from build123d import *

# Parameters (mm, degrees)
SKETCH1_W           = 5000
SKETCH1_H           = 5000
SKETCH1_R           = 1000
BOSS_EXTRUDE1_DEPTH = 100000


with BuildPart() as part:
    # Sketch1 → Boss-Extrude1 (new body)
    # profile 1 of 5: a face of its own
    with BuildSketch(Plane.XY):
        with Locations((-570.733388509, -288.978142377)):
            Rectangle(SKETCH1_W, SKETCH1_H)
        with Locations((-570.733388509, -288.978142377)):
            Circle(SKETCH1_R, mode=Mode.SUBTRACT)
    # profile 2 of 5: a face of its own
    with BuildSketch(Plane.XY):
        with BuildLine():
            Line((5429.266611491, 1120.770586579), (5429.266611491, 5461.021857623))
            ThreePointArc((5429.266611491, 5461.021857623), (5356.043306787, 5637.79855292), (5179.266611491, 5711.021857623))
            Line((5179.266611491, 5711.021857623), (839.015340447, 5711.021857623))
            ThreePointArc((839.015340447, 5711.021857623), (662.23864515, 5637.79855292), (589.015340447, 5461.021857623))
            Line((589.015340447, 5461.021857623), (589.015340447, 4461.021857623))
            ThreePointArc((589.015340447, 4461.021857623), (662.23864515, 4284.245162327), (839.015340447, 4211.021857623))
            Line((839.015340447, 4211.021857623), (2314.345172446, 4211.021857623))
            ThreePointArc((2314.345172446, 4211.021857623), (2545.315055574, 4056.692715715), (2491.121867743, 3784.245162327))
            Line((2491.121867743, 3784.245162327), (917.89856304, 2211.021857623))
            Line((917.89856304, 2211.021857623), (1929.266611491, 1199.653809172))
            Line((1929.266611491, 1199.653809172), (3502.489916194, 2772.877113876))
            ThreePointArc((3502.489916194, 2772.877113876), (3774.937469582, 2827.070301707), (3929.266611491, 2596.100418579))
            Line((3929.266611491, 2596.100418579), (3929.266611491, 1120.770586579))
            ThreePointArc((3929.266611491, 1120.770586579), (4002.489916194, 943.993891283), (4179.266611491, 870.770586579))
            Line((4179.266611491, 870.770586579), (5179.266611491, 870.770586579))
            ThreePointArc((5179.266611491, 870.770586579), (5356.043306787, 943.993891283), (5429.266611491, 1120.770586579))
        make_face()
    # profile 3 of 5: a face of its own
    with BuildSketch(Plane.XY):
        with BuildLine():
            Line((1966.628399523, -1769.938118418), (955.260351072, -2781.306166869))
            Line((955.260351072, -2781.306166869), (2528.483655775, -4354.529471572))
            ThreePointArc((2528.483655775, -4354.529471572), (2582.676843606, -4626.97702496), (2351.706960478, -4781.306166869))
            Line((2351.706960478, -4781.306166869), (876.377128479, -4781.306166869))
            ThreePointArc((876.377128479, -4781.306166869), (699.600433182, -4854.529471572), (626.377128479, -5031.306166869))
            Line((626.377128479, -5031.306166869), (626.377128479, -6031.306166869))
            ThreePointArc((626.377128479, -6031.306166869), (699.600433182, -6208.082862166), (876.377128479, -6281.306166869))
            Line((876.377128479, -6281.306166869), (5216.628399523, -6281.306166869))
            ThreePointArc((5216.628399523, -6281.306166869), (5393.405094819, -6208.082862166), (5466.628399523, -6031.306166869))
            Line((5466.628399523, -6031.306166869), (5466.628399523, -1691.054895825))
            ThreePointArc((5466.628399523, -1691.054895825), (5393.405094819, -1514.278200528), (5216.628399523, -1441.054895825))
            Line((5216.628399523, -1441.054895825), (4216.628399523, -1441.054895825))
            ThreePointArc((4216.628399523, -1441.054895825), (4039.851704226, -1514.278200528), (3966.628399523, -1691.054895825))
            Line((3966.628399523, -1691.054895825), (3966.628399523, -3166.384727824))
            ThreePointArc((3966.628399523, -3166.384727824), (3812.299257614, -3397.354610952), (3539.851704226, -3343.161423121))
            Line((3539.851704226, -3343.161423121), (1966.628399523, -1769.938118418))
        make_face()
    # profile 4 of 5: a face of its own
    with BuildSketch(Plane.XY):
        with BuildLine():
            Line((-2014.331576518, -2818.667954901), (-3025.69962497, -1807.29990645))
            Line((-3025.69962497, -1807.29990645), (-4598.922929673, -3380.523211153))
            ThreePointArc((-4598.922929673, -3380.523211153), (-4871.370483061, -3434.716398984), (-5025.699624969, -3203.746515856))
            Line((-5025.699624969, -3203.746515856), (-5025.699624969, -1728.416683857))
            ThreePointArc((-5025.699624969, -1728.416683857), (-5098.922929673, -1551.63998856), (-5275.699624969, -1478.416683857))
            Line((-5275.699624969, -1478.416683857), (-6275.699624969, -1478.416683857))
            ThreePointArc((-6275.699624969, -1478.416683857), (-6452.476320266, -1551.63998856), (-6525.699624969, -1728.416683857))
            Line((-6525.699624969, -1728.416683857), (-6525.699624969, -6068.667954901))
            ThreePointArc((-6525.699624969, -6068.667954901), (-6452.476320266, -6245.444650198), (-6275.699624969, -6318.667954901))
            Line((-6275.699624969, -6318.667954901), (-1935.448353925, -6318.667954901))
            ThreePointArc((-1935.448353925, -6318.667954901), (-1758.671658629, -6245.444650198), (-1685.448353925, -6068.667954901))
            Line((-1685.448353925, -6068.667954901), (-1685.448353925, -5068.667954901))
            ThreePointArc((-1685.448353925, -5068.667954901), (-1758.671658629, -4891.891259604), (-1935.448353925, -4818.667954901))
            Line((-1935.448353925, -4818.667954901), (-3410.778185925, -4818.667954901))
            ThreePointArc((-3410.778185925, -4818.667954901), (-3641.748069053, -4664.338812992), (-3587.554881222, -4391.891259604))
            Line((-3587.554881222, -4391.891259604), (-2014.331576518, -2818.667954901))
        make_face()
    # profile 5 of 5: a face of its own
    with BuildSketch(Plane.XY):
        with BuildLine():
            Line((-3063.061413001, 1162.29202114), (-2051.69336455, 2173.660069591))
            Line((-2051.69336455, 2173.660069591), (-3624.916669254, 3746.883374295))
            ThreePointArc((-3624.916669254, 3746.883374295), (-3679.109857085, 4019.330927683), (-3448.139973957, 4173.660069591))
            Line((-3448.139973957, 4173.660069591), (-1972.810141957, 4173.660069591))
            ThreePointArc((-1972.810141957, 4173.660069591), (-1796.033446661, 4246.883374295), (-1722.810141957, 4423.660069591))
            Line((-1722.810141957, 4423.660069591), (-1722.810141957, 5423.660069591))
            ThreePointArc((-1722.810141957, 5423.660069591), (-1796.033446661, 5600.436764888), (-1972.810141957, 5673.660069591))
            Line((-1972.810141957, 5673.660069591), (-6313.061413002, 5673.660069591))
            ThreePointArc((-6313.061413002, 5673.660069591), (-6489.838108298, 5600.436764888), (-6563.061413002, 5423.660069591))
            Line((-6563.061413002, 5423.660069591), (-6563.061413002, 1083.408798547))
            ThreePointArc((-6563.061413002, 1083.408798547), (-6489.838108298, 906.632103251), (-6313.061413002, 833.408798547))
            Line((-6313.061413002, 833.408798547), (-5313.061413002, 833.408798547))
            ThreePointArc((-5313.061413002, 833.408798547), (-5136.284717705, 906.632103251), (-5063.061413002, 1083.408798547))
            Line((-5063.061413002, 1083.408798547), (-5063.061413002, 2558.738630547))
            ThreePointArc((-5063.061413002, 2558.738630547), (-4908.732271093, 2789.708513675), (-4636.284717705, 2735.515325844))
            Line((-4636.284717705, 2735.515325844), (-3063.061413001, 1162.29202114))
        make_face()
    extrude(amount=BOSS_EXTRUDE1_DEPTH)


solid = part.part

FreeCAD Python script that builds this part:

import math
import FreeCAD as App
import Part
import Sketcher
from FreeCAD import Vector
Q = App.Units.Quantity

doc = App.newDocument("Part")
body = doc.addObject("PartDesign::Body", "Body")

sketch1 = doc.addObject("Sketcher::SketchObject", "Sketch")
body.addObject(sketch1)
sketch1.AttachmentSupport = (doc.XY_Plane, [""])
sketch1.MapMode = "FlatFace"
sketch1.addGeometry(Part.LineSegment(Vector(-3588, -4392, 0), Vector(-2014, -2819, 0)), False)
sketch1.addGeometry(Part.LineSegment(Vector(-2014, -2819, 0), Vector(-2044, -2789, 0)), False)
sketch1.addGeometry(Part.LineSegment(Vector(-2044, -2789, 0), Vector(963, -2789, 0)), False)
sketch1.addGeometry(Part.LineSegment(Vector(963, -2789, 0), Vector(2528, -4355, 0)), False)
sketch1.addGeometry(Part.ArcOfCircle(Part.Circle(Vector(2352, -4531, 0), Vector(0, 0, 1), 250), math.radians(-90), math.radians(45)), False)
sketch1.addGeometry(Part.LineSegment(Vector(2352, -4781, 0), Vector(876, -4781, 0)), False)
sketch1.addGeometry(Part.ArcOfCircle(Part.Circle(Vector(876, -5031, 0), Vector(0, 0, 1), 250), math.radians(90), math.radians(180)), False)
sketch1.addGeometry(Part.LineSegment(Vector(626, -5031, 0), Vector(626, -6031, 0)), False)
sketch1.addGeometry(Part.ArcOfCircle(Part.Circle(Vector(876, -6031, 0), Vector(0, 0, 1), 250), math.radians(180), math.radians(270)), False)
sketch1.addGeometry(Part.LineSegment(Vector(876, -6281, 0), Vector(5217, -6281, 0)), False)
sketch1.addGeometry(Part.ArcOfCircle(Part.Circle(Vector(5217, -6031, 0), Vector(0, 0, 1), 250), math.radians(-90), math.radians(0)), False)
sketch1.addGeometry(Part.LineSegment(Vector(5467, -6031, 0), Vector(5467, -1691, 0)), False)
sketch1.addGeometry(Part.ArcOfCircle(Part.Circle(Vector(5217, -1691, 0), Vector(0, 0, 1), 250), math.radians(0), math.radians(90)), False)
sketch1.addGeometry(Part.LineSegment(Vector(5217, -1441, 0), Vector(4217, -1441, 0)), False)
sketch1.addGeometry(Part.ArcOfCircle(Part.Circle(Vector(4217, -1691, 0), Vector(0, 0, 1), 250), math.radians(90), math.radians(180)), False)
sketch1.addGeometry(Part.LineSegment(Vector(3967, -1691, 0), Vector(3967, -3166, 0)), False)
sketch1.addGeometry(Part.ArcOfCircle(Part.Circle(Vector(3717, -3166, 0), Vector(0, 0, 1), 250), math.radians(-135), math.radians(0)), False)
sketch1.addGeometry(Part.LineSegment(Vector(3540, -3343, 0), Vector(1967, -1770, 0)), False)
sketch1.addGeometry(Part.LineSegment(Vector(1967, -1770, 0), Vector(1929, -1807, 0)), False)
sketch1.addGeometry(Part.LineSegment(Vector(1929, -1807, 0), Vector(1929, 1200, 0)), False)
sketch1.addGeometry(Part.LineSegment(Vector(1929, 1200, 0), Vector(3502, 2773, 0)), False)
sketch1.addGeometry(Part.ArcOfCircle(Part.Circle(Vector(3679, 2596, 0), Vector(0, 0, 1), 250), math.radians(0), math.radians(135)), False)
sketch1.addGeometry(Part.LineSegment(Vector(3929, 2596, 0), Vector(3929, 1121, 0)), False)
sketch1.addGeometry(Part.ArcOfCircle(Part.Circle(Vector(4179, 1121, 0), Vector(0, 0, 1), 250), math.radians(180), math.radians(270)), False)
sketch1.addGeometry(Part.LineSegment(Vector(4179, 871, 0), Vector(5179, 871, 0)), False)
sketch1.addGeometry(Part.ArcOfCircle(Part.Circle(Vector(5179, 1121, 0), Vector(0, 0, 1), 250), math.radians(-90), math.radians(0)), False)
sketch1.addGeometry(Part.LineSegment(Vector(5429, 1121, 0), Vector(5429, 5461, 0)), False)
sketch1.addGeometry(Part.ArcOfCircle(Part.Circle(Vector(5179, 5461, 0), Vector(0, 0, 1), 250), math.radians(0), math.radians(90)), False)
sketch1.addGeometry(Part.LineSegment(Vector(5179, 5711, 0), Vector(839, 5711, 0)), False)
sketch1.addGeometry(Part.ArcOfCircle(Part.Circle(Vector(839, 5461, 0), Vector(0, 0, 1), 250), math.radians(90), math.radians(180)), False)
sketch1.addGeometry(Part.LineSegment(Vector(589, 5461, 0), Vector(589, 4461, 0)), False)
sketch1.addGeometry(Part.ArcOfCircle(Part.Circle(Vector(839, 4461, 0), Vector(0, 0, 1), 250), math.radians(180), math.radians(270)), False)
sketch1.addGeometry(Part.LineSegment(Vector(839, 4211, 0), Vector(2314, 4211, 0)), False)
sketch1.addGeometry(Part.ArcOfCircle(Part.Circle(Vector(2314, 3961, 0), Vector(0, 0, 1), 250), math.radians(-45), math.radians(90)), False)
sketch1.addGeometry(Part.LineSegment(Vector(2491, 3784, 0), Vector(918, 2211, 0)), False)
sketch1.addGeometry(Part.LineSegment(Vector(918, 2211, 0), Vector(-2089, 2211, 0)), False)
sketch1.addGeometry(Part.LineSegment(Vector(-2089, 2211, 0), Vector(-3625, 3747, 0)), False)
sketch1.addGeometry(Part.ArcOfCircle(Part.Circle(Vector(-3448, 3924, 0), Vector(0, 0, 1), 250), math.radians(90), math.radians(225)), False)
sketch1.addGeometry(Part.LineSegment(Vector(-3448, 4174, 0), Vector(-1973, 4174, 0)), False)
sketch1.addGeometry(Part.ArcOfCircle(Part.Circle(Vector(-1973, 4424, 0), Vector(0, 0, 1), 250), math.radians(-90), math.radians(0)), False)
sketch1.addGeometry(Part.LineSegment(Vector(-1723, 4424, 0), Vector(-1723, 5424, 0)), False)
sketch1.addGeometry(Part.ArcOfCircle(Part.Circle(Vector(-1973, 5424, 0), Vector(0, 0, 1), 250), math.radians(0), math.radians(90)), False)
sketch1.addGeometry(Part.LineSegment(Vector(-1973, 5674, 0), Vector(-6313, 5674, 0)), False)
sketch1.addGeometry(Part.ArcOfCircle(Part.Circle(Vector(-6313, 5424, 0), Vector(0, 0, 1), 250), math.radians(90), math.radians(180)), False)
sketch1.addGeometry(Part.LineSegment(Vector(-6563, 5424, 0), Vector(-6563, 1083, 0)), False)
sketch1.addGeometry(Part.ArcOfCircle(Part.Circle(Vector(-6313, 1083, 0), Vector(0, 0, 1), 250), math.radians(-180), math.radians(-90)), False)
sketch1.addGeometry(Part.LineSegment(Vector(-6313, 833, 0), Vector(-5313, 833, 0)), False)
sketch1.addGeometry(Part.ArcOfCircle(Part.Circle(Vector(-5313, 1083, 0), Vector(0, 0, 1), 250), math.radians(-90), math.radians(0)), False)
sketch1.addGeometry(Part.LineSegment(Vector(-5063, 1083, 0), Vector(-5063, 2559, 0)), False)
sketch1.addGeometry(Part.ArcOfCircle(Part.Circle(Vector(-4813, 2559, 0), Vector(0, 0, 1), 250), math.radians(45), math.radians(180)), False)
sketch1.addGeometry(Part.LineSegment(Vector(-4636, 2736, 0), Vector(-3071, 1170, 0)), False)
sketch1.addGeometry(Part.LineSegment(Vector(-3071, 1170, 0), Vector(-3071, -1852, 0)), False)
sketch1.addGeometry(Part.LineSegment(Vector(-3071, -1852, 0), Vector(-4599, -3381, 0)), False)
sketch1.addGeometry(Part.ArcOfCircle(Part.Circle(Vector(-4776, -3204, 0), Vector(0, 0, 1), 250), math.radians(180), math.radians(315)), False)
sketch1.addGeometry(Part.LineSegment(Vector(-5026, -3204, 0), Vector(-5026, -1728, 0)), False)
sketch1.addGeometry(Part.ArcOfCircle(Part.Circle(Vector(-5276, -1728, 0), Vector(0, 0, 1), 250), math.radians(0), math.radians(90)), False)
sketch1.addGeometry(Part.LineSegment(Vector(-5276, -1478, 0), Vector(-6276, -1478, 0)), False)
sketch1.addGeometry(Part.ArcOfCircle(Part.Circle(Vector(-6276, -1728, 0), Vector(0, 0, 1), 250), math.radians(90), math.radians(180)), False)
sketch1.addGeometry(Part.LineSegment(Vector(-6526, -1728, 0), Vector(-6526, -6069, 0)), False)
sketch1.addGeometry(Part.ArcOfCircle(Part.Circle(Vector(-6276, -6069, 0), Vector(0, 0, 1), 250), math.radians(180), math.radians(270)), False)
sketch1.addGeometry(Part.LineSegment(Vector(-6276, -6319, 0), Vector(-1935, -6319, 0)), False)
sketch1.addGeometry(Part.ArcOfCircle(Part.Circle(Vector(-1935, -6069, 0), Vector(0, 0, 1), 250), math.radians(-90), math.radians(0)), False)
sketch1.addGeometry(Part.LineSegment(Vector(-1685, -6069, 0), Vector(-1685, -5069, 0)), False)
sketch1.addGeometry(Part.ArcOfCircle(Part.Circle(Vector(-1935, -5069, 0), Vector(0, 0, 1), 250), math.radians(0), math.radians(90)), False)
sketch1.addGeometry(Part.LineSegment(Vector(-1935, -4819, 0), Vector(-3411, -4819, 0)), False)
sketch1.addGeometry(Part.ArcOfCircle(Part.Circle(Vector(-3411, -4569, 0), Vector(0, 0, 1), 250), math.radians(135), math.radians(270)), False)
sketch1.addGeometry(Part.Circle(Vector(-571, -289, 0), Vector(0, 0, 1), 1000), False)
sketch1.addConstraint(Sketcher.Constraint("Coincident", 0, 2, 1, 1))
sketch1.addConstraint(Sketcher.Constraint("Coincident", 1, 2, 2, 1))
sketch1.addConstraint(Sketcher.Constraint("Coincident", 2, 2, 3, 1))
sketch1.addConstraint(Sketcher.Constraint("Tangent", 3, 2, 4, 2))
sketch1.addConstraint(Sketcher.Constraint("Tangent", 4, 1, 5, 1))
sketch1.addConstraint(Sketcher.Constraint("Tangent", 5, 2, 6, 1))
sketch1.addConstraint(Sketcher.Constraint("Tangent", 6, 2, 7, 1))
sketch1.addConstraint(Sketcher.Constraint("Tangent", 7, 2, 8, 1))
sketch1.addConstraint(Sketcher.Constraint("Tangent", 8, 2, 9, 1))
sketch1.addConstraint(Sketcher.Constraint("Tangent", 9, 2, 10, 1))
sketch1.addConstraint(Sketcher.Constraint("Tangent", 10, 2, 11, 1))
sketch1.addConstraint(Sketcher.Constraint("Tangent", 11, 2, 12, 1))
sketch1.addConstraint(Sketcher.Constraint("Tangent", 12, 2, 13, 1))
sketch1.addConstraint(Sketcher.Constraint("Tangent", 13, 2, 14, 1))
sketch1.addConstraint(Sketcher.Constraint("Tangent", 14, 2, 15, 1))
sketch1.addConstraint(Sketcher.Constraint("Tangent", 15, 2, 16, 2))
sketch1.addConstraint(Sketcher.Constraint("Tangent", 16, 1, 17, 1))
sketch1.addConstraint(Sketcher.Constraint("Coincident", 17, 2, 18, 1))
sketch1.addConstraint(Sketcher.Constraint("Coincident", 18, 2, 19, 1))
sketch1.addConstraint(Sketcher.Constraint("Coincident", 19, 2, 20, 1))
sketch1.addConstraint(Sketcher.Constraint("Tangent", 20, 2, 21, 2))
sketch1.addConstraint(Sketcher.Constraint("Tangent", 21, 1, 22, 1))
sketch1.addConstraint(Sketcher.Constraint("Tangent", 22, 2, 23, 1))
sketch1.addConstraint(Sketcher.Constraint("Tangent", 23, 2, 24, 1))
sketch1.addConstraint(Sketcher.Constraint("Tangent", 24, 2, 25, 1))
sketch1.addConstraint(Sketcher.Constraint("Tangent", 25, 2, 26, 1))
sketch1.addConstraint(Sketcher.Constraint("Tangent", 26, 2, 27, 1))
sketch1.addConstraint(Sketcher.Constraint("Tangent", 27, 2, 28, 1))
sketch1.addConstraint(Sketcher.Constraint("Tangent", 28, 2, 29, 1))
sketch1.addConstraint(Sketcher.Constraint("Tangent", 29, 2, 30, 1))
sketch1.addConstraint(Sketcher.Constraint("Tangent", 30, 2, 31, 1))
sketch1.addConstraint(Sketcher.Constraint("Tangent", 31, 2, 32, 1))
sketch1.addConstraint(Sketcher.Constraint("Tangent", 32, 2, 33, 2))
sketch1.addConstraint(Sketcher.Constraint("Tangent", 33, 1, 34, 1))
sketch1.addConstraint(Sketcher.Constraint("Coincident", 34, 2, 35, 1))
sketch1.addConstraint(Sketcher.Constraint("Coincident", 35, 2, 36, 1))
sketch1.addConstraint(Sketcher.Constraint("Tangent", 36, 2, 37, 2))
sketch1.addConstraint(Sketcher.Constraint("Tangent", 37, 1, 38, 1))
sketch1.addConstraint(Sketcher.Constraint("Tangent", 38, 2, 39, 1))
sketch1.addConstraint(Sketcher.Constraint("Tangent", 39, 2, 40, 1))
sketch1.addConstraint(Sketcher.Constraint("Tangent", 40, 2, 41, 1))
sketch1.addConstraint(Sketcher.Constraint("Tangent", 41, 2, 42, 1))
sketch1.addConstraint(Sketcher.Constraint("Tangent", 42, 2, 43, 1))
sketch1.addConstraint(Sketcher.Constraint("Tangent", 43, 2, 44, 1))
sketch1.addConstraint(Sketcher.Constraint("Tangent", 44, 2, 45, 1))
sketch1.addConstraint(Sketcher.Constraint("Tangent", 45, 2, 46, 1))
sketch1.addConstraint(Sketcher.Constraint("Tangent", 46, 2, 47, 1))
sketch1.addConstraint(Sketcher.Constraint("Tangent", 47, 2, 48, 1))
sketch1.addConstraint(Sketcher.Constraint("Tangent", 48, 2, 49, 2))
sketch1.addConstraint(Sketcher.Constraint("Tangent", 49, 1, 50, 1))
sketch1.addConstraint(Sketcher.Constraint("Coincident", 50, 2, 51, 1))
sketch1.addConstraint(Sketcher.Constraint("Coincident", 51, 2, 52, 1))
sketch1.addConstraint(Sketcher.Constraint("Tangent", 52, 2, 53, 2))
sketch1.addConstraint(Sketcher.Constraint("Tangent", 53, 1, 54, 1))
sketch1.addConstraint(Sketcher.Constraint("Tangent", 54, 2, 55, 1))
sketch1.addConstraint(Sketcher.Constraint("Tangent", 55, 2, 56, 1))
sketch1.addConstraint(Sketcher.Constraint("Tangent", 56, 2, 57, 1))
sketch1.addConstraint(Sketcher.Constraint("Tangent", 57, 2, 58, 1))
sketch1.addConstraint(Sketcher.Constraint("Tangent", 58, 2, 59, 1))
sketch1.addConstraint(Sketcher.Constraint("Tangent", 59, 2, 60, 1))
sketch1.addConstraint(Sketcher.Constraint("Tangent", 60, 2, 61, 1))
sketch1.addConstraint(Sketcher.Constraint("Tangent", 61, 2, 62, 1))
sketch1.addConstraint(Sketcher.Constraint("Tangent", 62, 2, 63, 1))
sketch1.addConstraint(Sketcher.Constraint("Tangent", 63, 2, 64, 1))
sketch1.addConstraint(Sketcher.Constraint("Tangent", 64, 2, 65, 2))
sketch1.addConstraint(Sketcher.Constraint("Tangent", 65, 1, 0, 1))
sketch1.addConstraint(Sketcher.Constraint("Horizontal", 2))
sketch1.addConstraint(Sketcher.Constraint("Horizontal", 5))
sketch1.addConstraint(Sketcher.Constraint("Vertical", 7))
sketch1.addConstraint(Sketcher.Constraint("Horizontal", 9))
sketch1.addConstraint(Sketcher.Constraint("Vertical", 11))
sketch1.addConstraint(Sketcher.Constraint("Horizontal", 13))
sketch1.addConstraint(Sketcher.Constraint("Vertical", 15))
sketch1.addConstraint(Sketcher.Constraint("Vertical", 19))
sketch1.addConstraint(Sketcher.Constraint("Vertical", 22))
sketch1.addConstraint(Sketcher.Constraint("Horizontal", 24))
sketch1.addConstraint(Sketcher.Constraint("Vertical", 26))
sketch1.addConstraint(Sketcher.Constraint("Horizontal", 28))
sketch1.addConstraint(Sketcher.Constraint("Vertical", 30))
sketch1.addConstraint(Sketcher.Constraint("Horizontal", 32))
sketch1.addConstraint(Sketcher.Constraint("Horizontal", 35))
sketch1.addConstraint(Sketcher.Constraint("Horizontal", 38))
sketch1.addConstraint(Sketcher.Constraint("Vertical", 40))
sketch1.addConstraint(Sketcher.Constraint("Horizontal", 42))
sketch1.addConstraint(Sketcher.Constraint("Vertical", 44))
sketch1.addConstraint(Sketcher.Constraint("Horizontal", 46))
sketch1.addConstraint(Sketcher.Constraint("Vertical", 48))
sketch1.addConstraint(Sketcher.Constraint("Vertical", 51))
sketch1.addConstraint(Sketcher.Constraint("Vertical", 54))
sketch1.addConstraint(Sketcher.Constraint("Horizontal", 56))
sketch1.addConstraint(Sketcher.Constraint("Vertical", 58))
sketch1.addConstraint(Sketcher.Constraint("Horizontal", 60))
sketch1.addConstraint(Sketcher.Constraint("Vertical", 62))
sketch1.addConstraint(Sketcher.Constraint("Horizontal", 64))
sketch1.addConstraint(Sketcher.Constraint("Equal", 4, 6))
sketch1.addConstraint(Sketcher.Constraint("Equal", 6, 8))
sketch1.addConstraint(Sketcher.Constraint("Equal", 8, 10))
sketch1.addConstraint(Sketcher.Constraint("Equal", 10, 12))
sketch1.addConstraint(Sketcher.Constraint("Equal", 12, 14))
sketch1.addConstraint(Sketcher.Constraint("Equal", 14, 16))
sketch1.addConstraint(Sketcher.Constraint("Equal", 16, 21))
sketch1.addConstraint(Sketcher.Constraint("Equal", 21, 23))
sketch1.addConstraint(Sketcher.Constraint("Equal", 23, 25))
sketch1.addConstraint(Sketcher.Constraint("Equal", 25, 27))
sketch1.addConstraint(Sketcher.Constraint("Equal", 27, 29))
sketch1.addConstraint(Sketcher.Constraint("Equal", 29, 31))
sketch1.addConstraint(Sketcher.Constraint("Equal", 31, 33))
sketch1.addConstraint(Sketcher.Constraint("Equal", 33, 37))
sketch1.addConstraint(Sketcher.Constraint("Equal", 37, 39))
sketch1.addConstraint(Sketcher.Constraint("Equal", 39, 41))
sketch1.addConstraint(Sketcher.Constraint("Equal", 41, 43))
sketch1.addConstraint(Sketcher.Constraint("Equal", 43, 45))
sketch1.addConstraint(Sketcher.Constraint("Equal", 45, 47))
sketch1.addConstraint(Sketcher.Constraint("Equal", 47, 49))
sketch1.addConstraint(Sketcher.Constraint("Equal", 49, 53))
sketch1.addConstraint(Sketcher.Constraint("Equal", 53, 55))
sketch1.addConstraint(Sketcher.Constraint("Equal", 55, 57))
sketch1.addConstraint(Sketcher.Constraint("Equal", 57, 59))
sketch1.addConstraint(Sketcher.Constraint("Equal", 59, 61))
sketch1.addConstraint(Sketcher.Constraint("Equal", 61, 63))
sketch1.addConstraint(Sketcher.Constraint("Equal", 63, 65))
sketch1.addConstraint(Sketcher.Constraint("Perpendicular", 0, 1))
sketch1.addConstraint(Sketcher.Constraint("Parallel", 1, 3))
sketch1.addConstraint(Sketcher.Constraint("Parallel", 3, 17))
sketch1.addConstraint(Sketcher.Constraint("Perpendicular", 17, 18))
sketch1.addConstraint(Sketcher.Constraint("Parallel", 18, 20))
sketch1.addConstraint(Sketcher.Constraint("Parallel", 20, 34))
sketch1.addConstraint(Sketcher.Constraint("Perpendicular", 34, 36))
sketch1.addConstraint(Sketcher.Constraint("Parallel", 36, 50))
sketch1.addConstraint(Sketcher.Constraint("Perpendicular", 50, 52))
sketch1.addConstraint(Sketcher.Constraint("Equal", 13, 24))
sketch1.addConstraint(Sketcher.Constraint("Equal", 9, 28))
sketch1.addConstraint(Sketcher.Constraint("Equal", 5, 32))
sketch1.addConstraint(Sketcher.Constraint("Equal", 2, 35))
sketch1.addConstraint(Sketcher.Constraint("Equal", 32, 38))
sketch1.addConstraint(Sketcher.Constraint("Equal", 28, 42))
sketch1.addConstraint(Sketcher.Constraint("Equal", 24, 46))
sketch1.addConstraint(Sketcher.Constraint("Equal", 46, 56))
sketch1.addConstraint(Sketcher.Constraint("Equal", 42, 60))
sketch1.addConstraint(Sketcher.Constraint("Equal", 38, 64))
sketch1.addConstraint(Sketcher.Constraint("Equal", 56, 7))
sketch1.addConstraint(Sketcher.Constraint("Equal", 60, 11))
sketch1.addConstraint(Sketcher.Constraint("Equal", 64, 15))
sketch1.addConstraint(Sketcher.Constraint("Equal", 35, 19))
sketch1.addConstraint(Sketcher.Constraint("Equal", 15, 22))
sketch1.addConstraint(Sketcher.Constraint("Equal", 11, 26))
sketch1.addConstraint(Sketcher.Constraint("Equal", 7, 30))
sketch1.addConstraint(Sketcher.Constraint("Equal", 30, 40))
sketch1.addConstraint(Sketcher.Constraint("Equal", 26, 44))
sketch1.addConstraint(Sketcher.Constraint("Equal", 22, 48))
sketch1.addConstraint(Sketcher.Constraint("Equal", 48, 54))
sketch1.addConstraint(Sketcher.Constraint("Equal", 44, 58))
sketch1.addConstraint(Sketcher.Constraint("Equal", 40, 62))
sketch1.addConstraint(Sketcher.Constraint("Equal", 0, 17))
sketch1.addConstraint(Sketcher.Constraint("Equal", 17, 20))
sketch1.addConstraint(Sketcher.Constraint("Equal", 20, 34))
sketch1.addConstraint(Sketcher.Constraint("Equal", 3, 50))
sketch1.addConstraint(Sketcher.Constraint("Diameter", 66, Q("2000 mm")))
sketch1.addConstraint(Sketcher.Constraint("Radius", 4, Q("250 mm")))
sketch1.addConstraint(Sketcher.Constraint("DistanceX", 13, 2, 13, 1, Q("1000 mm")))
sketch1.addConstraint(Sketcher.Constraint("Angle", 0, Q("45 deg")))
sketch1.addConstraint(Sketcher.Constraint("DistanceX", 5, 2, 5, 1, Q("1475.329832 mm")))
sketch1.addConstraint(Sketcher.Constraint("DistanceX", 9, 1, 9, 2, Q("4340.251271 mm")))
sketch1.addConstraint(Sketcher.Constraint("DistanceX", -1, 1, 10, 3, Q("5216.6284 mm")))
sketch1.addConstraint(Sketcher.Constraint("DistanceY", -1, 1, 45, 3, Q("1083.408799 mm")))
sketch1.addConstraint(Sketcher.Constraint("DistanceX", -1, 1, 17, 2, Q("1966.6284 mm")))
sketch1.addConstraint(Sketcher.Constraint("DistanceX", 2, 1, 2, 2, Q("3006.953716 mm")))
sketch1.addConstraint(Sketcher.Constraint("DistanceY", 51, 2, 51, 1, Q("3022.297667 mm")))
sketch1.addConstraint(Sketcher.Constraint("DistanceX", -1, 1, 21, 3, Q("3679.266611 mm")))
sketch1.addConstraint(Sketcher.Constraint("DistanceY", -1, 1, 21, 3, Q("2596.100419 mm")))
sketch1.addConstraint(Sketcher.Constraint("DistanceX", 66, 3, -1, 1, Q("570.733389 mm")))
sketch1.addConstraint(Sketcher.Constraint("DistanceX", 1, 2, -1, 1, Q("2044.021389 mm")))
sketch1.addConstraint(Sketcher.Constraint("DistanceY", 66, 3, -1, 1, Q("288.978142 mm")))
pad1 = doc.addObject("PartDesign::Pad", "Pad")
body.addObject(pad1)
pad1.Profile = sketch1
pad1.Length = 100000

doc.recompute()
